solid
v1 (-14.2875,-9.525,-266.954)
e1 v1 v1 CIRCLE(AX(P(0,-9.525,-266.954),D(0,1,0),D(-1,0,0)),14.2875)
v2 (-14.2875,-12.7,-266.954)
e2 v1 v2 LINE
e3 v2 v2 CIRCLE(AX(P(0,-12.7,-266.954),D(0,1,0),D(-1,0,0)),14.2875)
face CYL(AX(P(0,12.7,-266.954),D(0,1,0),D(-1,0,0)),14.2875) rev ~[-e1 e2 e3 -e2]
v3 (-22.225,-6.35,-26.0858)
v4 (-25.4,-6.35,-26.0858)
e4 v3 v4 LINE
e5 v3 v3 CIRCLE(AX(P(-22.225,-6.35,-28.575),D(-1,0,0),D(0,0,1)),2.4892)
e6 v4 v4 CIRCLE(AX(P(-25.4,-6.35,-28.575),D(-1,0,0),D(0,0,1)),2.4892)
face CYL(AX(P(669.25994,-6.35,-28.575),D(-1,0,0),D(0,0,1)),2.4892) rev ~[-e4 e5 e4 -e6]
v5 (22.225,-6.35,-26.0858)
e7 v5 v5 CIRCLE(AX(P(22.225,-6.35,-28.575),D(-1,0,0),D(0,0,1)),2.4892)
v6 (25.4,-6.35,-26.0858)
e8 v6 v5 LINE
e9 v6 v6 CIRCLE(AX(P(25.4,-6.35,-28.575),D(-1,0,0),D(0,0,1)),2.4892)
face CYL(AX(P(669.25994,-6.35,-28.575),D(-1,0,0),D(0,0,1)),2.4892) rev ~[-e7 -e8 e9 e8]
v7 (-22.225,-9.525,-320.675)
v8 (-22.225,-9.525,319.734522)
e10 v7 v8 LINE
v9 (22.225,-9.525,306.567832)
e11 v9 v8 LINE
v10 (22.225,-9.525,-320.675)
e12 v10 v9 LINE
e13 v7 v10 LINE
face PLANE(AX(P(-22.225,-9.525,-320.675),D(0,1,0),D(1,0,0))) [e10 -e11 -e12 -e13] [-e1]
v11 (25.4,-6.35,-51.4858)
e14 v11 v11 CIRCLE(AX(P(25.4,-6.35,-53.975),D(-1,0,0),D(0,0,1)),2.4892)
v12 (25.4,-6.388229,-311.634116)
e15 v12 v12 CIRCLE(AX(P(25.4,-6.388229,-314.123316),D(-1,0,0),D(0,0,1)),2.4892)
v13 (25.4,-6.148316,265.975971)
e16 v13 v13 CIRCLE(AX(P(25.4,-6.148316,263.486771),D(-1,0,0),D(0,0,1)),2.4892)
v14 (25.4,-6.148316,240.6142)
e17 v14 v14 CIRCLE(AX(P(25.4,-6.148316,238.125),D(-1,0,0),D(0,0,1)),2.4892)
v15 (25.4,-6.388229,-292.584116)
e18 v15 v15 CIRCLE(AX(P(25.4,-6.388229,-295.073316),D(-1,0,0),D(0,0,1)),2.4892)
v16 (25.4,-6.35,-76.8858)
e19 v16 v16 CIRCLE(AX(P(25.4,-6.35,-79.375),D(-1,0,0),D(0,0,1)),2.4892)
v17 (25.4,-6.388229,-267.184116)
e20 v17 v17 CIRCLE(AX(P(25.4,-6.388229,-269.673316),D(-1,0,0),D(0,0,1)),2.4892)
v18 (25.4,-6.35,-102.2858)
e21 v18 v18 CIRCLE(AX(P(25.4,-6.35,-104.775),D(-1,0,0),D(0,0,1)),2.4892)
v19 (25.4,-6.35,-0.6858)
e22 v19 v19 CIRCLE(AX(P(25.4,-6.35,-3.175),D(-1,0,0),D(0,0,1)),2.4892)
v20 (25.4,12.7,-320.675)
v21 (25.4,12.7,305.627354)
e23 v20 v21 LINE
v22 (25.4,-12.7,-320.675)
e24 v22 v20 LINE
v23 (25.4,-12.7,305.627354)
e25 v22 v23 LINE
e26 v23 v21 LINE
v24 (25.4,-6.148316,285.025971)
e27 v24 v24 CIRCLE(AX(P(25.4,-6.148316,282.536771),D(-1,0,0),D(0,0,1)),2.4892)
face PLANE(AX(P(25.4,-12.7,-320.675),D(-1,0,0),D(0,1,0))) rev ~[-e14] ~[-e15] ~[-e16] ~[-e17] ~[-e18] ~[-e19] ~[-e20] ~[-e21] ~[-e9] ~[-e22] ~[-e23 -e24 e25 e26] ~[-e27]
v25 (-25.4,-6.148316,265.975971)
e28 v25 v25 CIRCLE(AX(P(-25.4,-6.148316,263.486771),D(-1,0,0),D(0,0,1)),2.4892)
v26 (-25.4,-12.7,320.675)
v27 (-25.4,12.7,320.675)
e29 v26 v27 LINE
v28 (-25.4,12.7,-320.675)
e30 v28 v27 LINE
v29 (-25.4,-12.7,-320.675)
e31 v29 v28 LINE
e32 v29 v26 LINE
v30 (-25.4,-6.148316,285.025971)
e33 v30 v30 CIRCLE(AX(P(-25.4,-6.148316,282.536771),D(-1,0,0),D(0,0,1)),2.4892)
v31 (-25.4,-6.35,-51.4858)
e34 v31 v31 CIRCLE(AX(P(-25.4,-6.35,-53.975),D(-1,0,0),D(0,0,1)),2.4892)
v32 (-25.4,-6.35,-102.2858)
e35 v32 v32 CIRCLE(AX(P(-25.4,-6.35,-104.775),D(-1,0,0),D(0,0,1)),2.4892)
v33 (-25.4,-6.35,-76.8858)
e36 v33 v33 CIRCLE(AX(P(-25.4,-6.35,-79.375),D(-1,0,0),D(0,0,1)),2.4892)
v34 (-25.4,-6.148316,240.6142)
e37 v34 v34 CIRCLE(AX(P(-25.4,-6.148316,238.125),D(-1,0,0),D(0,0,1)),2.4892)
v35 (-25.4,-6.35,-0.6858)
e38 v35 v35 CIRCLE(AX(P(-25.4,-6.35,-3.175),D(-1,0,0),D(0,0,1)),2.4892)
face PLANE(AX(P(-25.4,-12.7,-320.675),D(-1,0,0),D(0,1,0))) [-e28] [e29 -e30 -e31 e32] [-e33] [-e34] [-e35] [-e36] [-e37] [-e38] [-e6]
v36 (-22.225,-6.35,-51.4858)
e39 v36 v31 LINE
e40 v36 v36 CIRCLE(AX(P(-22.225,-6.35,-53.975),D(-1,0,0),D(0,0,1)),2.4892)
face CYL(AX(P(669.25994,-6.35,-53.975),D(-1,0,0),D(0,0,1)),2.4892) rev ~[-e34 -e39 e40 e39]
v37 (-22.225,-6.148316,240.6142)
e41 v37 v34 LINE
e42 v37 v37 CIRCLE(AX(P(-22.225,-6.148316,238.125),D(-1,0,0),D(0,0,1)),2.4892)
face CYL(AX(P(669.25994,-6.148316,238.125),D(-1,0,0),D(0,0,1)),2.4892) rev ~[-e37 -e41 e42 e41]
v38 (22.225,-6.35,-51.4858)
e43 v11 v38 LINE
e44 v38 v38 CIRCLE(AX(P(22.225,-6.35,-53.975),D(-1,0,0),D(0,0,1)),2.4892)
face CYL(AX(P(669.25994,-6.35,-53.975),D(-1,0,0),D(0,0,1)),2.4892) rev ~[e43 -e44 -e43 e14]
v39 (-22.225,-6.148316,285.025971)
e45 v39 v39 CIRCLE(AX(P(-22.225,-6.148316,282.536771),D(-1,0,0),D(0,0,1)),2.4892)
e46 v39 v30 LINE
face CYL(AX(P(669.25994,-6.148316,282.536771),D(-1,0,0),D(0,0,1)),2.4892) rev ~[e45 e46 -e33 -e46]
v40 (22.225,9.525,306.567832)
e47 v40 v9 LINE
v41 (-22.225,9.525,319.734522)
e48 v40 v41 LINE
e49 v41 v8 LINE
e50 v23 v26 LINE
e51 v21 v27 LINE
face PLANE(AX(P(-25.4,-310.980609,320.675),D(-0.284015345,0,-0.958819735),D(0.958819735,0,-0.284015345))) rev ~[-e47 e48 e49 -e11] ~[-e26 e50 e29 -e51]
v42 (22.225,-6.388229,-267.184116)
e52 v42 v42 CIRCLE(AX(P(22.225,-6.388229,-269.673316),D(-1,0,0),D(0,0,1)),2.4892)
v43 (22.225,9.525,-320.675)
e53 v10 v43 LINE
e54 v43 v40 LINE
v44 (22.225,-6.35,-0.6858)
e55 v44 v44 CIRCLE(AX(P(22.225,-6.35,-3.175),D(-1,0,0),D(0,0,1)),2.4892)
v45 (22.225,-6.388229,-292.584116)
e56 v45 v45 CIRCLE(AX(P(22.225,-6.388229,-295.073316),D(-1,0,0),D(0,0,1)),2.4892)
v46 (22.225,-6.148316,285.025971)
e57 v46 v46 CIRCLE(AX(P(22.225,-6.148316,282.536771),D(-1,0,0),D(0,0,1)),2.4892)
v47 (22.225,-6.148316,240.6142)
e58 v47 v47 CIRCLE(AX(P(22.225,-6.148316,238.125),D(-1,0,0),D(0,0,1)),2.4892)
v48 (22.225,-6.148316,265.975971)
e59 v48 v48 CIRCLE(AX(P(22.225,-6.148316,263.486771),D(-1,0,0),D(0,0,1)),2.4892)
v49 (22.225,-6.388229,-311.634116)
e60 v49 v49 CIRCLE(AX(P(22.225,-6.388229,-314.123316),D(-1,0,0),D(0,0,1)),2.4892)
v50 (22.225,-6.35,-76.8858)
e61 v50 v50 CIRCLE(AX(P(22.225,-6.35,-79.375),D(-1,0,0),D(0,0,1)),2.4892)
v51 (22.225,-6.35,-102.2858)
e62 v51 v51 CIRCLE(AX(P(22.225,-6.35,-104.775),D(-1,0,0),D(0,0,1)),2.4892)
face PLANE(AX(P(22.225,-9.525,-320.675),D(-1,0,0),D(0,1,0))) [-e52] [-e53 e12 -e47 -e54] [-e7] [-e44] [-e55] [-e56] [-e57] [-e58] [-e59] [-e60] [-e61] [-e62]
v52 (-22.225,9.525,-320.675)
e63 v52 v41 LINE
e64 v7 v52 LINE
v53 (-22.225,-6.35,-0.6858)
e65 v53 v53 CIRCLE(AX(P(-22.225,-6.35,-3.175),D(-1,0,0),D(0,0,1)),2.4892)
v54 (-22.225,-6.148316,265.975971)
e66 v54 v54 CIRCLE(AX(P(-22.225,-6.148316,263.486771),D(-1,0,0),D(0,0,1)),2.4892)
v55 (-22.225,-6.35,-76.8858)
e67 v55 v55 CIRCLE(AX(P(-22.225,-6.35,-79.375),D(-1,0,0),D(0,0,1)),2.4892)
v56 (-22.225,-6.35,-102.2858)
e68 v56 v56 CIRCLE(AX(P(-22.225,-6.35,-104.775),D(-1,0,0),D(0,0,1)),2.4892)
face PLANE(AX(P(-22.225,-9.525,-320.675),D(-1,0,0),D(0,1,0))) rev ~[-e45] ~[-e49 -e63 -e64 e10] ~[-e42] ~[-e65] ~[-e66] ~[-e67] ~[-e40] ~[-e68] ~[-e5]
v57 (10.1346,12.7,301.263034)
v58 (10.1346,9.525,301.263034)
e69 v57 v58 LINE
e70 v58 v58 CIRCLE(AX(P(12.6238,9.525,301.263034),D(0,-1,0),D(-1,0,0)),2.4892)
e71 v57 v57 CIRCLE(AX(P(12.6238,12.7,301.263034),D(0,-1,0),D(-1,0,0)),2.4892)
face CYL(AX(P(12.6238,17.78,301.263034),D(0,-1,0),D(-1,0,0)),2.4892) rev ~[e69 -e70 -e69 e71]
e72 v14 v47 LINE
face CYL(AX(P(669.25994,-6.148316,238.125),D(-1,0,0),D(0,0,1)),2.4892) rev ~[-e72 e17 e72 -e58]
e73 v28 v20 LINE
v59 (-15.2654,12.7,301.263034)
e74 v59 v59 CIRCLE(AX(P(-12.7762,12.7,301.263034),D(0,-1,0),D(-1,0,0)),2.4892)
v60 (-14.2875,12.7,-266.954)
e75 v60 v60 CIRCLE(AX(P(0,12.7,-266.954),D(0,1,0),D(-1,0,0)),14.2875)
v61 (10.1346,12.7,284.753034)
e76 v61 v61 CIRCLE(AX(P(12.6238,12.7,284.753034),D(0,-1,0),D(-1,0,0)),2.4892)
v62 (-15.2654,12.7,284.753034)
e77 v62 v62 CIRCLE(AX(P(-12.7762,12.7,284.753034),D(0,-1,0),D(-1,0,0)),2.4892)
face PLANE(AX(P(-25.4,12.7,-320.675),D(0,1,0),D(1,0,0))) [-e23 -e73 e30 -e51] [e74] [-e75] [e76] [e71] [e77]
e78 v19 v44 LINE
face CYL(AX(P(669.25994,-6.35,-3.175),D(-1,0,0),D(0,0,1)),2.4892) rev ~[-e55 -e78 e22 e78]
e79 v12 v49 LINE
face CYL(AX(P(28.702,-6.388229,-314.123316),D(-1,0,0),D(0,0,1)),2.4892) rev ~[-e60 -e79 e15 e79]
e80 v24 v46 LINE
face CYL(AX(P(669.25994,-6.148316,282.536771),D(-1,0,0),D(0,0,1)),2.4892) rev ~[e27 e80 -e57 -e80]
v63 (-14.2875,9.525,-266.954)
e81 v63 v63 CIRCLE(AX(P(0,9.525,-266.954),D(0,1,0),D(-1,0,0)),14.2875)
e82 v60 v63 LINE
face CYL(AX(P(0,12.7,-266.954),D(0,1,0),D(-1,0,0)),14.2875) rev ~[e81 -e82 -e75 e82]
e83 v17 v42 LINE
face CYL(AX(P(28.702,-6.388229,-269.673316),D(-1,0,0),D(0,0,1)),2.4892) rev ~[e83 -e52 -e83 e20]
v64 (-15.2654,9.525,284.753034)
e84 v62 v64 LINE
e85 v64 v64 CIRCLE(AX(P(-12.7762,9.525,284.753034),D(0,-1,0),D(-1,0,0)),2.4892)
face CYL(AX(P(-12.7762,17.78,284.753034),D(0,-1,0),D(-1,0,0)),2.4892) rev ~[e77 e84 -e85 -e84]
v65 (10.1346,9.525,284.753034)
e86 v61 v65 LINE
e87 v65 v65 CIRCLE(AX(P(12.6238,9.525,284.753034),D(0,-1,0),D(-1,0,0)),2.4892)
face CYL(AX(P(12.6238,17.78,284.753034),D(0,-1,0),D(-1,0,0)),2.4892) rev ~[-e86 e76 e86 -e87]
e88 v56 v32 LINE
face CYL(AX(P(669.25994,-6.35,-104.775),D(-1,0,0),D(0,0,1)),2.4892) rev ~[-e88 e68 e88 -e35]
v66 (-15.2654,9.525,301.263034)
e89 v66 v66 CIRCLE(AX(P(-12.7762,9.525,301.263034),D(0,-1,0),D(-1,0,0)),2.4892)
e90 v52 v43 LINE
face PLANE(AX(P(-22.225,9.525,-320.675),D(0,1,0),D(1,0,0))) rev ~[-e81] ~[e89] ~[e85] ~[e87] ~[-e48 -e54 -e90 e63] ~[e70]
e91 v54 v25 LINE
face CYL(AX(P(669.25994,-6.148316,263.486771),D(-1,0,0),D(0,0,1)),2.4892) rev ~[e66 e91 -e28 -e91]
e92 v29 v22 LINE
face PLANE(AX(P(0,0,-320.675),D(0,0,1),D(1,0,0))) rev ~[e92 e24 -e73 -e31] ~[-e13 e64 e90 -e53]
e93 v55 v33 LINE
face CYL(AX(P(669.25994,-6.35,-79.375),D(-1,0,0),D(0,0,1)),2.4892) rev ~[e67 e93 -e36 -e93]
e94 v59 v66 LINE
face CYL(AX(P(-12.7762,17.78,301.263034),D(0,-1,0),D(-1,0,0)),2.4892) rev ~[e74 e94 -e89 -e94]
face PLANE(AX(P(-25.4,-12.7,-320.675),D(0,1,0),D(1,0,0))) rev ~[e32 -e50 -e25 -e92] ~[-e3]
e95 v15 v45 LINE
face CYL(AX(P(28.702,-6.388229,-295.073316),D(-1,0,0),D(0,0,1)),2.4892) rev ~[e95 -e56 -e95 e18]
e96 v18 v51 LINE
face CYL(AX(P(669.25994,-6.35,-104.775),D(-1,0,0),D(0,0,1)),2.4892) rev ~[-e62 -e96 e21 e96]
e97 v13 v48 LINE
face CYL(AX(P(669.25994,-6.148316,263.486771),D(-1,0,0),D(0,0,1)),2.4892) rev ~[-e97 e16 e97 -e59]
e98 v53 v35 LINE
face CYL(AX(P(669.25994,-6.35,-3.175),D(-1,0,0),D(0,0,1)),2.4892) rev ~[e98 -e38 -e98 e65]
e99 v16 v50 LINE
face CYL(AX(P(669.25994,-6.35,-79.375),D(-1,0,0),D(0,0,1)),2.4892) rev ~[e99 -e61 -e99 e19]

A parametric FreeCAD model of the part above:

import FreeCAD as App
import Part
import Sketcher
Q = App.Units.Quantity

doc = App.newDocument("Part")
body = doc.addObject("PartDesign::Body", "Body")

# Sketch on XY plane
sketch1 = doc.addObject("Sketcher::SketchObject", "Sketch")
body.addObject(sketch1)
sketch1.AttachmentSupport = (doc.XY_Plane, [""])
sketch1.MapMode = "FlatFace"
sketch1.addGeometry(Part.LineSegment(App.Vector(-25.4, 12.7, 0), App.Vector(-25.4, -12.7, 0)), False)
sketch1.addGeometry(Part.LineSegment(App.Vector(-25.4, -12.7, 0), App.Vector(25.4, -12.7, 0)), False)
sketch1.addGeometry(Part.LineSegment(App.Vector(25.4, -12.7, 0), App.Vector(25.4, 12.7, 0)), False)
sketch1.addGeometry(Part.LineSegment(App.Vector(25.4, 12.7, 0), App.Vector(-25.4, 12.7, 0)), False)
sketch1.addGeometry(Part.LineSegment(App.Vector(22.225, -9.525, 0), App.Vector(-22.225, -9.525, 0)), False)
sketch1.addGeometry(Part.LineSegment(App.Vector(-22.225, -9.525, 0), App.Vector(-22.225, 9.525, 0)), False)
sketch1.addGeometry(Part.LineSegment(App.Vector(-22.225, 9.525, 0), App.Vector(22.225, 9.525, 0)), False)
sketch1.addGeometry(Part.LineSegment(App.Vector(22.225, 9.525, 0), App.Vector(22.225, -9.525, 0)), False)
sketch1.addConstraint(Sketcher.Constraint("Coincident", 0, 2, 1, 1))
sketch1.addConstraint(Sketcher.Constraint("Coincident", 1, 2, 2, 1))
sketch1.addConstraint(Sketcher.Constraint("Coincident", 2, 2, 3, 1))
sketch1.addConstraint(Sketcher.Constraint("Coincident", 3, 2, 0, 1))
sketch1.addConstraint(Sketcher.Constraint("Coincident", 4, 2, 5, 1))
sketch1.addConstraint(Sketcher.Constraint("Coincident", 5, 2, 6, 1))
sketch1.addConstraint(Sketcher.Constraint("Coincident", 6, 2, 7, 1))
sketch1.addConstraint(Sketcher.Constraint("Coincident", 7, 2, 4, 1))
sketch1.addConstraint(Sketcher.Constraint("Vertical", 0))
sketch1.addConstraint(Sketcher.Constraint("Horizontal", 1))
sketch1.addConstraint(Sketcher.Constraint("Vertical", 2))
sketch1.addConstraint(Sketcher.Constraint("Horizontal", 3))
sketch1.addConstraint(Sketcher.Constraint("Horizontal", 4))
sketch1.addConstraint(Sketcher.Constraint("Vertical", 5))
sketch1.addConstraint(Sketcher.Constraint("Horizontal", 6))
sketch1.addConstraint(Sketcher.Constraint("Vertical", 7))
sketch1.addConstraint(Sketcher.Constraint("Symmetric", 0, 2, 2, 2, -1, 1))
sketch1.addConstraint(Sketcher.Constraint("Symmetric", 4, 2, 6, 2, -1, 1))
sketch1.addConstraint(Sketcher.Constraint("DistanceX", 1, 1, 1, 2, Q("2 in")))
sketch1.addConstraint(Sketcher.Constraint("DistanceY", 0, 2, 0, 1, Q("1 in")))
sketch1.addConstraint(Sketcher.Constraint("DistanceX", 4, 2, 4, 1, Q("1.75 in")))
sketch1.addConstraint(Sketcher.Constraint("DistanceY", 5, 1, 5, 2, Q("0.75 in")))
pad1 = doc.addObject("PartDesign::Pad", "Pad")
body.addObject(pad1)
pad1.Profile = sketch1
pad1.Type = "TwoLengths"
pad1.Length = Q("12.625 in")
pad1.Length2 = Q("12.625 in")

# Sketch on XZ plane
sketch2 = doc.addObject("Sketcher::SketchObject", "Sketch001")
body.addObject(sketch2)
sketch2.AttachmentSupport = (doc.XZ_Plane, [""])
sketch2.MapMode = "FlatFace"
sketch2.AttachmentOffset = App.Placement(App.Vector(0, 0, -0.5 * 25.4), App.Rotation())
sketch2.addGeometry(Part.LineSegment(App.Vector(-25.4, 320.675, 0), App.Vector(1322.117471, 320.675, 0)), False)
sketch2.addGeometry(Part.LineSegment(App.Vector(1322.117471, 320.675, 0), App.Vector(3890.750129, -37.13929, 0)), False)
sketch2.addGeometry(Part.LineSegment(App.Vector(3890.750129, -37.13929, 0), App.Vector(3837.35096, -420.474595, 0)), False)
sketch2.addGeometry(Part.LineSegment(App.Vector(3837.35096, -420.474595, 0), App.Vector(1268.718302, -62.660305, 0)), False)
sketch2.addGeometry(Part.LineSegment(App.Vector(1268.718302, -62.660305, 0), App.Vector(25.4, 305.627354, 0)), False)
sketch2.addGeometry(Part.LineSegment(App.Vector(25.4, 305.627354, 0), App.Vector(-25.4, 320.675, 0)), False)
sketch2.addConstraint(Sketcher.Constraint("Coincident", 0, 2, 1, 1))
sketch2.addConstraint(Sketcher.Constraint("Coincident", 1, 2, 2, 1))
sketch2.addConstraint(Sketcher.Constraint("Coincident", 2, 2, 3, 1))
sketch2.addConstraint(Sketcher.Constraint("Coincident", 3, 2, 4, 1))
sketch2.addConstraint(Sketcher.Constraint("Coincident", 4, 2, 5, 1))
sketch2.addConstraint(Sketcher.Constraint("Coincident", 5, 2, 0, 1))
sketch2.addConstraint(Sketcher.Constraint("Horizontal", 0))
sketch2.addConstraint(Sketcher.Constraint("Perpendicular", 1, 2))
sketch2.addConstraint(Sketcher.Constraint("Perpendicular", 2, 3))
sketch2.addConstraint(Sketcher.Constraint("Parallel", 4, 5))
sketch2.addConstraint(Sketcher.Constraint("Equal", 1, 3))
sketch2.addConstraint(Sketcher.Constraint("DistanceX", -1, 1, 4, 2, Q("1 in")))
sketch2.addConstraint(Sketcher.Constraint("DistanceX", 5, 2, -1, 1, Q("1 in")))
sketch2.addConstraint(Sketcher.Constraint("Angle", 4, Q("163.5 deg")))
sketch2.addConstraint(Sketcher.Constraint("DistanceY", -1, 1, 0, 2, Q("12.625 in")))
sketch2.addConstraint(Sketcher.Constraint("DistanceX", 0, 1, 0, 2, 1347.517471))
sketch2.addConstraint(Sketcher.Constraint("DistanceX", -1, 1, 3, 2, 1268.718302))
sketch2.addConstraint(Sketcher.Constraint("Distance", 1, 2593.434942))
pocket1 = doc.addObject("PartDesign::Pocket", "Pocket")
body.addObject(pocket1)
pocket1.Profile = sketch2
pocket1.Type = "ThroughAll"
pocket1.Midplane = True

# Sketch on XZ plane
sketch3 = doc.addObject("Sketcher::SketchObject", "Sketch002")
body.addObject(sketch3)
sketch3.AttachmentSupport = (doc.XZ_Plane, [""])
sketch3.MapMode = "FlatFace"
sketch3.AttachmentOffset = App.Placement(App.Vector(0, 0, -0.5 * 25.4), App.Rotation())
sketch3.addGeometry(Part.Circle(App.Vector(0, -266.954, 0), App.Vector(0, 0, 1), 14.2875), False)
sketch3.addConstraint(Sketcher.Constraint("PointOnObject", 0, 3, -2))
sketch3.addConstraint(Sketcher.Constraint("Diameter", 0, Q("1.125 in")))
sketch3.addConstraint(Sketcher.Constraint("DistanceY", 0, 3, -1, 1, Q("10.51 in")))
pocket2 = doc.addObject("PartDesign::Pocket", "Pocket001")
body.addObject(pocket2)
pocket2.Profile = sketch3
pocket2.Type = "ThroughAll"
pocket2.Reversed = True

# Sketch on XZ plane
sketch4 = doc.addObject("Sketcher::SketchObject", "Sketch003")
body.addObject(sketch4)
sketch4.AttachmentSupport = (doc.XZ_Plane, [""])
sketch4.MapMode = "FlatFace"
sketch4.AttachmentOffset = App.Placement(App.Vector(0, 0, -0.5 * 25.4), App.Rotation())
sketch4.addGeometry(Part.Circle(App.Vector(-12.7762, 284.753034, 0), App.Vector(0, 0, 1), 2.4892), False)
sketch4.addGeometry(Part.Circle(App.Vector(12.6238, 284.753034, 0), App.Vector(0, 0, 1), 2.4892), False)
sketch4.addGeometry(Part.Circle(App.Vector(12.6238, 301.263034, 0), App.Vector(0, 0, 1), 2.4892), False)
sketch4.addGeometry(Part.Circle(App.Vector(-12.7762, 301.263034, 0), App.Vector(0, 0, 1), 2.4892), False)
sketch4.addConstraint(Sketcher.Constraint("Equal", 0, 1))
sketch4.addConstraint(Sketcher.Constraint("Equal", 1, 2))
sketch4.addConstraint(Sketcher.Constraint("Equal", 2, 3))
sketch4.addConstraint(Sketcher.Constraint("Horizontal", 0, 3, 1, 3))
sketch4.addConstraint(Sketcher.Constraint("Horizontal", 2, 3, 3, 3))
sketch4.addConstraint(Sketcher.Constraint("Vertical", 1, 3, 2, 3))
sketch4.addConstraint(Sketcher.Constraint("Vertical", 0, 3, 3, 3))
sketch4.addConstraint(Sketcher.Constraint("Diameter", 0, Q("0.196 in")))
sketch4.addConstraint(Sketcher.Constraint("DistanceX", 0, 3, 1, 3, Q("1 in")))
sketch4.addConstraint(Sketcher.Constraint("DistanceY", 1, 3, 2, 3, Q("0.65 in")))
sketch4.addConstraint(Sketcher.Constraint("DistanceX", 0, 3, -1, 1, Q("0.503 in")))
sketch4.addConstraint(Sketcher.Constraint("DistanceY", -1, 1, 0, 3, 284.753034))
doc.recompute()
hole = doc.addObject("PartDesign::Hole", "Hole")
body.addObject(hole)
hole.Profile = sketch4
hole.ThreadType = "None"
hole.Diameter = Q("0.196 in")
hole.DepthType = "Dimension"
hole.Depth = Q("0.2 in")
hole.DrillPoint = "Angled"
hole.DrillPointAngle = 118
hole.Reversed = True

# Sketch on YZ plane
sketch5 = doc.addObject("Sketcher::SketchObject", "Sketch004")
body.addObject(sketch5)
sketch5.AttachmentSupport = (doc.YZ_Plane, [""])
sketch5.MapMode = "FlatFace"
sketch5.AttachmentOffset = App.Placement(App.Vector(0, 0, 1 * 25.4), App.Rotation())
sketch5.addGeometry(Part.Circle(App.Vector(-6.148316, 282.536771, 0), App.Vector(0, 0, 1), 2.4892), False)
sketch5.addGeometry(Part.Circle(App.Vector(-6.148316, 263.486771, 0), App.Vector(0, 0, 1), 2.4892), False)
sketch5.addGeometry(Part.Circle(App.Vector(-6.148316, 238.125, 0), App.Vector(0, 0, 1), 2.4892), False)
sketch5.addGeometry(Part.Circle(App.Vector(-6.35, -3.175, 0), App.Vector(0, 0, 1), 2.4892), False)
sketch5.addGeometry(Part.Circle(App.Vector(-6.35, -28.575, 0), App.Vector(0, 0, 1), 2.4892), False)
sketch5.addGeometry(Part.Circle(App.Vector(-6.35, -53.975, 0), App.Vector(0, 0, 1), 2.4892), False)
sketch5.addGeometry(Part.Circle(App.Vector(-6.35, -79.375, 0), App.Vector(0, 0, 1), 2.4892), False)
sketch5.addGeometry(Part.Circle(App.Vector(-6.35, -104.775, 0), App.Vector(0, 0, 1), 2.4892), False)
sketch5.addConstraint(Sketcher.Constraint("Equal", 0, 1))
sketch5.addConstraint(Sketcher.Constraint("Equal", 1, 2))
sketch5.addConstraint(Sketcher.Constraint("Equal", 2, 3))
sketch5.addConstraint(Sketcher.Constraint("Equal", 3, 4))
sketch5.addConstraint(Sketcher.Constraint("Equal", 4, 5))
sketch5.addConstraint(Sketcher.Constraint("Equal", 5, 6))
sketch5.addConstraint(Sketcher.Constraint("Equal", 6, 7))
sketch5.addConstraint(Sketcher.Constraint("Vertical", 0, 3, 1, 3))
sketch5.addConstraint(Sketcher.Constraint("Vertical", 1, 3, 2, 3))
sketch5.addConstraint(Sketcher.Constraint("Vertical", 3, 3, 4, 3))
sketch5.addConstraint(Sketcher.Constraint("Vertical", 4, 3, 5, 3))
sketch5.addConstraint(Sketcher.Constraint("Vertical", 5, 3, 6, 3))
sketch5.addConstraint(Sketcher.Constraint("Vertical", 6, 3, 7, 3))
sketch5.addConstraint(Sketcher.Constraint("Diameter", 0, Q("0.196 in")))
sketch5.addConstraint(Sketcher.Constraint("DistanceY", 4, 3, 3, 3, Q("1 in")))
sketch5.addConstraint(Sketcher.Constraint("DistanceY", 5, 3, 4, 3, Q("1 in")))
sketch5.addConstraint(Sketcher.Constraint("DistanceY", 6, 3, 5, 3, Q("1 in")))
sketch5.addConstraint(Sketcher.Constraint("DistanceY", 7, 3, 6, 3, Q("1 in")))
sketch5.addConstraint(Sketcher.Constraint("DistanceY", 3, 3, 2, 3, Q("9.5 in")))
sketch5.addConstraint(Sketcher.Constraint("DistanceX", 3, 3, -1, 1, Q("0.25 in")))
sketch5.addConstraint(Sketcher.Constraint("DistanceY", 1, 3, 0, 3, Q("0.75 in")))
sketch5.addConstraint(Sketcher.Constraint("DistanceY", -1, 1, 2, 3, Q("9.375 in")))
sketch5.addConstraint(Sketcher.Constraint("DistanceY", -1, 1, 0, 3, 282.536771))
sketch5.addConstraint(Sketcher.Constraint("DistanceX", 0, 3, -1, 1, 6.148316))
doc.recompute()
hole2 = doc.addObject("PartDesign::Hole", "Hole001")
body.addObject(hole2)
hole2.Profile = sketch5
hole2.ThreadType = "None"
hole2.Diameter = Q("0.196 in")
hole2.DepthType = "ThroughAll"

# Sketch on YZ plane
sketch6 = doc.addObject("Sketcher::SketchObject", "Sketch005")
body.addObject(sketch6)
sketch6.AttachmentSupport = (doc.YZ_Plane, [""])
sketch6.MapMode = "FlatFace"
sketch6.AttachmentOffset = App.Placement(App.Vector(0, 0, 1 * 25.4), App.Rotation())
sketch6.addGeometry(Part.Circle(App.Vector(-6.388229, -269.673316, 0), App.Vector(0, 0, 1), 2.4892), False)
sketch6.addGeometry(Part.Circle(App.Vector(-6.388229, -295.073316, 0), App.Vector(0, 0, 1), 2.4892), False)
sketch6.addGeometry(Part.Circle(App.Vector(-6.388229, -314.123316, 0), App.Vector(0, 0, 1), 2.4892), False)
sketch6.addConstraint(Sketcher.Constraint("Equal", 0, 1))
sketch6.addConstraint(Sketcher.Constraint("Equal", 1, 2))
sketch6.addConstraint(Sketcher.Constraint("Vertical", 0, 3, 1, 3))
sketch6.addConstraint(Sketcher.Constraint("Vertical", 1, 3, 2, 3))
sketch6.addConstraint(Sketcher.Constraint("Diameter", 0, Q("0.196 in")))
sketch6.addConstraint(Sketcher.Constraint("DistanceY", 1, 3, 0, 3, Q("1 in")))
sketch6.addConstraint(Sketcher.Constraint("DistanceY", 2, 3, 1, 3, Q("0.75 in")))
sketch6.addConstraint(Sketcher.Constraint("DistanceX", 0, 3, -1, 1, 6.388229))
sketch6.addConstraint(Sketcher.Constraint("DistanceY", 0, 3, -1, 1, 269.673316))
doc.recompute()
hole3 = doc.addObject("PartDesign::Hole", "Hole002")
body.addObject(hole3)
hole3.Profile = sketch6
hole3.ThreadType = "None"
hole3.Diameter = Q("0.196 in")
hole3.DepthType = "Dimension"
hole3.Depth = Q("0.13 in")
hole3.DrillPoint = "Angled"
hole3.DrillPointAngle = 118

doc.recompute()
